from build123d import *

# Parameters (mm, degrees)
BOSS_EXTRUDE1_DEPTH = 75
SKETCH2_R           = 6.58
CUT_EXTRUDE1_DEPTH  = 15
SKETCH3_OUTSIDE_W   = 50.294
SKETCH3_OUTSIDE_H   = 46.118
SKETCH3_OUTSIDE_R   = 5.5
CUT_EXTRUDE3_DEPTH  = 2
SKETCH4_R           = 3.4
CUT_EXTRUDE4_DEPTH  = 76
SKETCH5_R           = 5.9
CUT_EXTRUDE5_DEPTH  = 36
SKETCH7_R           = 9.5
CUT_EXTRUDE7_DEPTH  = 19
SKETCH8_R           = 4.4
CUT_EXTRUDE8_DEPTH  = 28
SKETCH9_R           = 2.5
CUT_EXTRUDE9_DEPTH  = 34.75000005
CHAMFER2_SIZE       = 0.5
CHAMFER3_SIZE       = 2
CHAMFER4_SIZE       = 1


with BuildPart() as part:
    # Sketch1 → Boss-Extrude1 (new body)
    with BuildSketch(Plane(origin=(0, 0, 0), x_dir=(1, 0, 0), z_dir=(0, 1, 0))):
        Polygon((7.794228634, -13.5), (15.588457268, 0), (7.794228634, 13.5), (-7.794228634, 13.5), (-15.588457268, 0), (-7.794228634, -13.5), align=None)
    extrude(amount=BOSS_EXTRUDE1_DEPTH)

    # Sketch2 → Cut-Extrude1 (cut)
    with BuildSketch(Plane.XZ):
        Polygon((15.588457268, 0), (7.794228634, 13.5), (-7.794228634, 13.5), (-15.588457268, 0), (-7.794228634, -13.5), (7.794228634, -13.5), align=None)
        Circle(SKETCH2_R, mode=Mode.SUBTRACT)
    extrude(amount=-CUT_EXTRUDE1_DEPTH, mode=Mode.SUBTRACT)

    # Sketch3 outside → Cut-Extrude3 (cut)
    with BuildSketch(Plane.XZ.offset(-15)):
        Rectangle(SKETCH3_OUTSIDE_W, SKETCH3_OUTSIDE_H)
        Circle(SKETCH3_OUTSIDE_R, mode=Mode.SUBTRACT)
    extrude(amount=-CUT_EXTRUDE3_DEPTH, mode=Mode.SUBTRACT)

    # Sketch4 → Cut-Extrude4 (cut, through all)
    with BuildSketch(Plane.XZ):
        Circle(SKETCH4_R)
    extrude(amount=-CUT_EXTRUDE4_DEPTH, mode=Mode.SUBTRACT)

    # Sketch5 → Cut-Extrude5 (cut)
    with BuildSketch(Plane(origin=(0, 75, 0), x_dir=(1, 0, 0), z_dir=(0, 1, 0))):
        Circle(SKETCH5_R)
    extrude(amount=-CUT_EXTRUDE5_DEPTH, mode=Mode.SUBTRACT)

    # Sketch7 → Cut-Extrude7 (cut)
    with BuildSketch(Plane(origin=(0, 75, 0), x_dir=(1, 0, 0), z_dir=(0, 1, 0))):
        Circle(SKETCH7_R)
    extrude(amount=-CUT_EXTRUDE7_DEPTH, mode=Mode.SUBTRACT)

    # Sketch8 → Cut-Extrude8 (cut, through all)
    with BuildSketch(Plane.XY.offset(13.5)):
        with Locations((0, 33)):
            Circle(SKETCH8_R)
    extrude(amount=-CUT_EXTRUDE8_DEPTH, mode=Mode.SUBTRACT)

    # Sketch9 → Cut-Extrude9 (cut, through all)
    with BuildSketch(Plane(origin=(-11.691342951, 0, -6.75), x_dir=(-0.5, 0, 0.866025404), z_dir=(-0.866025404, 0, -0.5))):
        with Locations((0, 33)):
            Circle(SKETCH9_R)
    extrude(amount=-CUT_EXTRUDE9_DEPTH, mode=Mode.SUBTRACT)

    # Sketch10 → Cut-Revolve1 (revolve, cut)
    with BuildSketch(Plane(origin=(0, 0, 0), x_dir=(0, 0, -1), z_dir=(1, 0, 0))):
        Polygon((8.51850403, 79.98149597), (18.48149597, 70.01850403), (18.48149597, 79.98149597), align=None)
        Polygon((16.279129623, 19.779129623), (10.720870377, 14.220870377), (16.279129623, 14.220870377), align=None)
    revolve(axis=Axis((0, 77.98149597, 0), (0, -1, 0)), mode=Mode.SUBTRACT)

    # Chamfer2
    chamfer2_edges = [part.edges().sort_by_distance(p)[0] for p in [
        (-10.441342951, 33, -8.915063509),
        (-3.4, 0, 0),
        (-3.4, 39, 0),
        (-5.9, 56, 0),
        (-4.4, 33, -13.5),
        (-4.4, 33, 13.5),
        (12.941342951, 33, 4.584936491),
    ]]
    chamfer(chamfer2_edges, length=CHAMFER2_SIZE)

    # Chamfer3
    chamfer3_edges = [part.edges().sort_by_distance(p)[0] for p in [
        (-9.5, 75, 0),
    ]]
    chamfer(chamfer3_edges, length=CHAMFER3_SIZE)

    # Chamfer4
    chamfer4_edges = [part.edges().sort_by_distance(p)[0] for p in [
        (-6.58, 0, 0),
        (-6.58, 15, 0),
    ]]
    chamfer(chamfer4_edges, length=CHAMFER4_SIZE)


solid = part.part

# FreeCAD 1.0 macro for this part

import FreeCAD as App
import Part
import Sketcher
Q = App.Units.Quantity


def edges_at(feature, points):
    """Names of the edges that pass closest to the given points."""
    edges = feature.Shape.Edges
    near = lambda p: min(range(len(edges)), key=lambda i: edges[i].distToShape(Part.Vertex(*p))[0])
    return sorted({f"Edge{near(p) + 1}" for p in points})

doc = App.newDocument("Part")
body = doc.addObject("PartDesign::Body", "Body")

sketch1 = body.newObject("Sketcher::SketchObject", "Sketch")
sketch1.AttachmentSupport = (doc.getObject("XZ_Plane"), [""])
sketch1.MapMode = "FlatFace"
sketch1.addGeometry([
    Part.LineSegment(App.Vector(8, 14, 0), App.Vector(16, 0, 0)),
    Part.LineSegment(App.Vector(16, 0, 0), App.Vector(8, -14, 0)),
    Part.LineSegment(App.Vector(8, -14, 0), App.Vector(-8, -14, 0)),
    Part.LineSegment(App.Vector(-8, -14, 0), App.Vector(-16, 0, 0)),
    Part.LineSegment(App.Vector(-16, 0, 0), App.Vector(-8, 14, 0)),
    Part.LineSegment(App.Vector(-8, 14, 0), App.Vector(8, 14, 0)),
], False)
sketch1.addConstraint([
    Sketcher.Constraint("Coincident", 0, 2, 1, 1),
    Sketcher.Constraint("Coincident", 1, 2, 2, 1),
    Sketcher.Constraint("Coincident", 2, 2, 3, 1),
    Sketcher.Constraint("Coincident", 3, 2, 4, 1),
    Sketcher.Constraint("Coincident", 4, 2, 5, 1),
    Sketcher.Constraint("Coincident", 5, 2, 0, 1),
    Sketcher.Constraint("Horizontal", 2),
    Sketcher.Constraint("Horizontal", 5),
    Sketcher.Constraint("Symmetric", 0, 2, 3, 2, -1, 1),
    Sketcher.Constraint("Symmetric", 1, 2, 4, 2, -1, 1),
    Sketcher.Constraint("PointOnObject", 0, 2, -1),
    Sketcher.Constraint("Parallel", 0, 3),
    Sketcher.Constraint("Vertical", 2, 2, 4, 2),
    Sketcher.Constraint("Angle", 0, Q("-60 deg")),
    Sketcher.Constraint("DistanceY", 2, 2, 4, 2, Q("27 mm")),
    Sketcher.Constraint("DistanceX", 2, 2, 2, 1, Q("15.588457 mm")),
])
pad1 = body.newObject("PartDesign::Pad", "Pad")
pad1.Profile = sketch1
pad1.Length = 75
pad1.Reversed = True

sketch2 = body.newObject("Sketcher::SketchObject", "Sketch001")
sketch2.AttachmentSupport = (doc.getObject("XZ_Plane"), [""])
sketch2.MapMode = "FlatFace"
sketch2.addGeometry([
    Part.LineSegment(App.Vector(16, 0, 0), App.Vector(8, 14, 0)),
    Part.LineSegment(App.Vector(8, 14, 0), App.Vector(-8, 14, 0)),
    Part.LineSegment(App.Vector(-8, 14, 0), App.Vector(-16, 0, 0)),
    Part.LineSegment(App.Vector(-16, 0, 0), App.Vector(-8, -14, 0)),
    Part.LineSegment(App.Vector(-8, -14, 0), App.Vector(8, -14, 0)),
    Part.LineSegment(App.Vector(8, -14, 0), App.Vector(16, 0, 0)),
    Part.Circle(App.Vector(0, 0, 0), App.Vector(0, 0, 1), 7),
], False)
sketch2.addConstraint([
    Sketcher.Constraint("Coincident", 0, 2, 1, 1),
    Sketcher.Constraint("Coincident", 1, 2, 2, 1),
    Sketcher.Constraint("Coincident", 2, 2, 3, 1),
    Sketcher.Constraint("Coincident", 3, 2, 4, 1),
    Sketcher.Constraint("Coincident", 4, 2, 5, 1),
    Sketcher.Constraint("Coincident", 5, 2, 0, 1),
    Sketcher.Constraint("Horizontal", 1),
    Sketcher.Constraint("Horizontal", 4),
    Sketcher.Constraint("Coincident", 6, 3, -1, 1),
    Sketcher.Constraint("Symmetric", 0, 2, 3, 2, -1, 1),
    Sketcher.Constraint("Symmetric", 2, 2, 5, 2, -1, 1),
    Sketcher.Constraint("PointOnObject", 2, 2, -1),
    Sketcher.Constraint("Parallel", 2, 5),
    Sketcher.Constraint("Vertical", 1, 2, 3, 2),
    Sketcher.Constraint("Diameter", 6, Q("13.16 mm")),
    Sketcher.Constraint("Angle", 0, Q("120 deg")),
    Sketcher.Constraint("DistanceY", 3, 2, 1, 2, Q("27 mm")),
    Sketcher.Constraint("DistanceX", 1, 2, 1, 1, Q("15.588457 mm")),
])
pocket1 = body.newObject("PartDesign::Pocket", "Pocket")
pocket1.Profile = sketch2
pocket1.Length = 15

sketch3 = body.newObject("Sketcher::SketchObject", "Sketch002")
sketch3.AttachmentSupport = (doc.getObject("XZ_Plane"), [""])
sketch3.MapMode = "FlatFace"
sketch3.AttachmentOffset = App.Placement(App.Vector(0, 0, -15), App.Rotation())
sketch3.addGeometry([
    Part.LineSegment(App.Vector(-25, 23, 0), App.Vector(-25, -23, 0)),
    Part.LineSegment(App.Vector(-25, -23, 0), App.Vector(25, -23, 0)),
    Part.LineSegment(App.Vector(25, -23, 0), App.Vector(25, 23, 0)),
    Part.LineSegment(App.Vector(25, 23, 0), App.Vector(-25, 23, 0)),
    Part.Circle(App.Vector(0, 0, 0), App.Vector(0, 0, 1), 6),
], False)
sketch3.addConstraint([
    Sketcher.Constraint("Coincident", 0, 2, 1, 1),
    Sketcher.Constraint("Coincident", 1, 2, 2, 1),
    Sketcher.Constraint("Coincident", 2, 2, 3, 1),
    Sketcher.Constraint("Coincident", 3, 2, 0, 1),
    Sketcher.Constraint("Vertical", 0),
    Sketcher.Constraint("Horizontal", 1),
    Sketcher.Constraint("Vertical", 2),
    Sketcher.Constraint("Horizontal", 3),
    Sketcher.Constraint("Coincident", 4, 3, -1, 1),
    Sketcher.Constraint("Symmetric", 0, 2, 2, 2, -1, 1),
    Sketcher.Constraint("Diameter", 4, Q("11 mm")),
    Sketcher.Constraint("DistanceX", 1, 1, 1, 2, Q("50.294 mm")),
    Sketcher.Constraint("DistanceY", 0, 2, 0, 1, Q("46.118 mm")),
])
pocket2 = body.newObject("PartDesign::Pocket", "Pocket001")
pocket2.Profile = sketch3
pocket2.Length = 2

sketch4 = body.newObject("Sketcher::SketchObject", "Sketch003")
sketch4.AttachmentSupport = (doc.getObject("XZ_Plane"), [""])
sketch4.MapMode = "FlatFace"
sketch4.addGeometry(Part.Circle(App.Vector(0, 0, 0), App.Vector(0, 0, 1), 3.4), False)
sketch4.addConstraint([
    Sketcher.Constraint("Coincident", 0, 3, -1, 1),
    Sketcher.Constraint("Diameter", 0, Q("6.8 mm")),
])
pocket3 = body.newObject("PartDesign::Pocket", "Pocket002")
pocket3.Profile = sketch4
pocket3.Type = "ThroughAll"

sketch5 = body.newObject("Sketcher::SketchObject", "Sketch004")
sketch5.AttachmentSupport = (doc.getObject("XZ_Plane"), [""])
sketch5.MapMode = "FlatFace"
sketch5.AttachmentOffset = App.Placement(App.Vector(0, 0, -75), App.Rotation())
sketch5.addGeometry(Part.Circle(App.Vector(0, 0, 0), App.Vector(0, 0, 1), 6), False)
sketch5.addConstraint([
    Sketcher.Constraint("Coincident", 0, 3, -1, 1),
    Sketcher.Constraint("Diameter", 0, Q("11.8 mm")),
])
pocket4 = body.newObject("PartDesign::Pocket", "Pocket003")
pocket4.Profile = sketch5
pocket4.Length = 36
pocket4.Reversed = True

sketch6 = body.newObject("Sketcher::SketchObject", "Sketch005")
sketch6.AttachmentSupport = (doc.getObject("XZ_Plane"), [""])
sketch6.MapMode = "FlatFace"
sketch6.AttachmentOffset = App.Placement(App.Vector(0, 0, -75), App.Rotation())
sketch6.addGeometry(Part.Circle(App.Vector(0, 0, 0), App.Vector(0, 0, 1), 10), False)
sketch6.addConstraint([
    Sketcher.Constraint("Coincident", 0, 3, -1, 1),
    Sketcher.Constraint("Diameter", 0, Q("19 mm")),
])
pocket5 = body.newObject("PartDesign::Pocket", "Pocket004")
pocket5.Profile = sketch6
pocket5.Length = 19
pocket5.Reversed = True

sketch7 = body.newObject("Sketcher::SketchObject", "Sketch006")
sketch7.AttachmentSupport = (doc.getObject("XY_Plane"), [""])
sketch7.MapMode = "FlatFace"
sketch7.AttachmentOffset = App.Placement(App.Vector(0, 0, 13.5), App.Rotation())
sketch7.addGeometry(Part.Circle(App.Vector(0, 33, 0), App.Vector(0, 0, 1), 4.4), False)
sketch7.addConstraint([
    Sketcher.Constraint("PointOnObject", 0, 3, -2),
    Sketcher.Constraint("Diameter", 0, Q("8.8 mm")),
    Sketcher.Constraint("DistanceY", -1, 1, 0, 3, Q("33 mm")),
])
pocket6 = body.newObject("PartDesign::Pocket", "Pocket005")
pocket6.Profile = sketch7
pocket6.Type = "ThroughAll"

sketch8 = body.newObject("Sketcher::SketchObject", "Sketch007")
sketch8.Placement = App.Placement(App.Vector(-11.691343, 0, -6.75), App.Rotation(App.Vector(-0.5, 0, 0.866025404), App.Vector(0, 1, 0), App.Vector(-0.866025404, 0, -0.5), "ZXY"))
sketch8.addGeometry(Part.Circle(App.Vector(0, 33, 0), App.Vector(0, 0, 1), 2.5), False)
sketch8.addConstraint([
    Sketcher.Constraint("PointOnObject", 0, 3, -2),
    Sketcher.Constraint("Diameter", 0, Q("5 mm")),
    Sketcher.Constraint("DistanceY", -1, 1, 0, 3, Q("33 mm")),
])
pocket7 = body.newObject("PartDesign::Pocket", "Pocket006")
pocket7.Profile = sketch8
pocket7.Type = "ThroughAll"

sketch9 = body.newObject("Sketcher::SketchObject", "Sketch008")
sketch9.AttachmentSupport = (doc.getObject("YZ_Plane"), [""])
sketch9.MapMode = "FlatFace"
sketch9.addGeometry([
    Part.LineSegment(App.Vector(80, -9, 0), App.Vector(70, -18, 0)),
    Part.LineSegment(App.Vector(70, -18, 0), App.Vector(80, -18, 0)),
    Part.LineSegment(App.Vector(80, -18, 0), App.Vector(80, -9, 0)),
    Part.LineSegment(App.Vector(20, -16, 0), App.Vector(14, -11, 0)),
    Part.LineSegment(App.Vector(14, -11, 0), App.Vector(14, -16, 0)),
    Part.LineSegment(App.Vector(14, -16, 0), App.Vector(20, -16, 0)),
], False)
sketch9.addConstraint([
    Sketcher.Constraint("Coincident", 0, 2, 1, 1),
    Sketcher.Constraint("Coincident", 1, 2, 2, 1),
    Sketcher.Constraint("Coincident", 2, 2, 0, 1),
    Sketcher.Constraint("Coincident", 3, 2, 4, 1),
    Sketcher.Constraint("Coincident", 4, 2, 5, 1),
    Sketcher.Constraint("Coincident", 5, 2, 3, 1),
    Sketcher.Constraint("Horizontal", 1),
    Sketcher.Constraint("Vertical", 2),
    Sketcher.Constraint("Vertical", 4),
    Sketcher.Constraint("Horizontal", 5),
    Sketcher.Constraint("Perpendicular", 0, 3),
    Sketcher.Constraint("Equal", 1, 2),
    Sketcher.Constraint("Distance", 0, Q("14.089798 mm")),
    Sketcher.Constraint("DistanceX", 5, 1, 5, 2, Q("5.558259 mm")),
    Sketcher.Constraint("DistanceX", -1, 1, 3, 2, Q("14.22087 mm")),
    Sketcher.Constraint("DistanceY", 3, 2, -1, 1, Q("10.72087 mm")),
    Sketcher.Constraint("DistanceX", -1, 1, 0, 2, Q("70.018504 mm")),
    Sketcher.Constraint("DistanceY", 0, 2, -1, 1, Q("18.481496 mm")),
])
groove = body.newObject("PartDesign::Groove", "Groove")
groove.Profile = sketch9
groove.ReferenceAxis = (sketch9, ["H_Axis"])
groove.Angle = 360
doc.recompute()

chamfer = body.newObject("PartDesign::Chamfer", "Chamfer")
chamfer.Base = (groove, edges_at(groove, [
    (-10.441, 33, -8.915),
    (-3.4, 0, 0),
    (-3.4, 39, 0),
    (-5.9, 56, 0),
    (-4.4, 33, -13.5),
    (-4.4, 33, 13.5),
    (12.941, 33, 4.585),
]))
chamfer.Size = 0.5
doc.recompute()

chamfer2 = body.newObject("PartDesign::Chamfer", "Chamfer001")
chamfer2.Base = (chamfer, edges_at(chamfer, [(-9.5, 75, 0)]))
chamfer2.Size = 2
doc.recompute()

chamfer3 = body.newObject("PartDesign::Chamfer", "Chamfer002")
chamfer3.Base = (chamfer2, edges_at(chamfer2, [(-6.58, 0, 0), (-6.58, 15, 0)]))
chamfer3.Size = 1

doc.recompute()
